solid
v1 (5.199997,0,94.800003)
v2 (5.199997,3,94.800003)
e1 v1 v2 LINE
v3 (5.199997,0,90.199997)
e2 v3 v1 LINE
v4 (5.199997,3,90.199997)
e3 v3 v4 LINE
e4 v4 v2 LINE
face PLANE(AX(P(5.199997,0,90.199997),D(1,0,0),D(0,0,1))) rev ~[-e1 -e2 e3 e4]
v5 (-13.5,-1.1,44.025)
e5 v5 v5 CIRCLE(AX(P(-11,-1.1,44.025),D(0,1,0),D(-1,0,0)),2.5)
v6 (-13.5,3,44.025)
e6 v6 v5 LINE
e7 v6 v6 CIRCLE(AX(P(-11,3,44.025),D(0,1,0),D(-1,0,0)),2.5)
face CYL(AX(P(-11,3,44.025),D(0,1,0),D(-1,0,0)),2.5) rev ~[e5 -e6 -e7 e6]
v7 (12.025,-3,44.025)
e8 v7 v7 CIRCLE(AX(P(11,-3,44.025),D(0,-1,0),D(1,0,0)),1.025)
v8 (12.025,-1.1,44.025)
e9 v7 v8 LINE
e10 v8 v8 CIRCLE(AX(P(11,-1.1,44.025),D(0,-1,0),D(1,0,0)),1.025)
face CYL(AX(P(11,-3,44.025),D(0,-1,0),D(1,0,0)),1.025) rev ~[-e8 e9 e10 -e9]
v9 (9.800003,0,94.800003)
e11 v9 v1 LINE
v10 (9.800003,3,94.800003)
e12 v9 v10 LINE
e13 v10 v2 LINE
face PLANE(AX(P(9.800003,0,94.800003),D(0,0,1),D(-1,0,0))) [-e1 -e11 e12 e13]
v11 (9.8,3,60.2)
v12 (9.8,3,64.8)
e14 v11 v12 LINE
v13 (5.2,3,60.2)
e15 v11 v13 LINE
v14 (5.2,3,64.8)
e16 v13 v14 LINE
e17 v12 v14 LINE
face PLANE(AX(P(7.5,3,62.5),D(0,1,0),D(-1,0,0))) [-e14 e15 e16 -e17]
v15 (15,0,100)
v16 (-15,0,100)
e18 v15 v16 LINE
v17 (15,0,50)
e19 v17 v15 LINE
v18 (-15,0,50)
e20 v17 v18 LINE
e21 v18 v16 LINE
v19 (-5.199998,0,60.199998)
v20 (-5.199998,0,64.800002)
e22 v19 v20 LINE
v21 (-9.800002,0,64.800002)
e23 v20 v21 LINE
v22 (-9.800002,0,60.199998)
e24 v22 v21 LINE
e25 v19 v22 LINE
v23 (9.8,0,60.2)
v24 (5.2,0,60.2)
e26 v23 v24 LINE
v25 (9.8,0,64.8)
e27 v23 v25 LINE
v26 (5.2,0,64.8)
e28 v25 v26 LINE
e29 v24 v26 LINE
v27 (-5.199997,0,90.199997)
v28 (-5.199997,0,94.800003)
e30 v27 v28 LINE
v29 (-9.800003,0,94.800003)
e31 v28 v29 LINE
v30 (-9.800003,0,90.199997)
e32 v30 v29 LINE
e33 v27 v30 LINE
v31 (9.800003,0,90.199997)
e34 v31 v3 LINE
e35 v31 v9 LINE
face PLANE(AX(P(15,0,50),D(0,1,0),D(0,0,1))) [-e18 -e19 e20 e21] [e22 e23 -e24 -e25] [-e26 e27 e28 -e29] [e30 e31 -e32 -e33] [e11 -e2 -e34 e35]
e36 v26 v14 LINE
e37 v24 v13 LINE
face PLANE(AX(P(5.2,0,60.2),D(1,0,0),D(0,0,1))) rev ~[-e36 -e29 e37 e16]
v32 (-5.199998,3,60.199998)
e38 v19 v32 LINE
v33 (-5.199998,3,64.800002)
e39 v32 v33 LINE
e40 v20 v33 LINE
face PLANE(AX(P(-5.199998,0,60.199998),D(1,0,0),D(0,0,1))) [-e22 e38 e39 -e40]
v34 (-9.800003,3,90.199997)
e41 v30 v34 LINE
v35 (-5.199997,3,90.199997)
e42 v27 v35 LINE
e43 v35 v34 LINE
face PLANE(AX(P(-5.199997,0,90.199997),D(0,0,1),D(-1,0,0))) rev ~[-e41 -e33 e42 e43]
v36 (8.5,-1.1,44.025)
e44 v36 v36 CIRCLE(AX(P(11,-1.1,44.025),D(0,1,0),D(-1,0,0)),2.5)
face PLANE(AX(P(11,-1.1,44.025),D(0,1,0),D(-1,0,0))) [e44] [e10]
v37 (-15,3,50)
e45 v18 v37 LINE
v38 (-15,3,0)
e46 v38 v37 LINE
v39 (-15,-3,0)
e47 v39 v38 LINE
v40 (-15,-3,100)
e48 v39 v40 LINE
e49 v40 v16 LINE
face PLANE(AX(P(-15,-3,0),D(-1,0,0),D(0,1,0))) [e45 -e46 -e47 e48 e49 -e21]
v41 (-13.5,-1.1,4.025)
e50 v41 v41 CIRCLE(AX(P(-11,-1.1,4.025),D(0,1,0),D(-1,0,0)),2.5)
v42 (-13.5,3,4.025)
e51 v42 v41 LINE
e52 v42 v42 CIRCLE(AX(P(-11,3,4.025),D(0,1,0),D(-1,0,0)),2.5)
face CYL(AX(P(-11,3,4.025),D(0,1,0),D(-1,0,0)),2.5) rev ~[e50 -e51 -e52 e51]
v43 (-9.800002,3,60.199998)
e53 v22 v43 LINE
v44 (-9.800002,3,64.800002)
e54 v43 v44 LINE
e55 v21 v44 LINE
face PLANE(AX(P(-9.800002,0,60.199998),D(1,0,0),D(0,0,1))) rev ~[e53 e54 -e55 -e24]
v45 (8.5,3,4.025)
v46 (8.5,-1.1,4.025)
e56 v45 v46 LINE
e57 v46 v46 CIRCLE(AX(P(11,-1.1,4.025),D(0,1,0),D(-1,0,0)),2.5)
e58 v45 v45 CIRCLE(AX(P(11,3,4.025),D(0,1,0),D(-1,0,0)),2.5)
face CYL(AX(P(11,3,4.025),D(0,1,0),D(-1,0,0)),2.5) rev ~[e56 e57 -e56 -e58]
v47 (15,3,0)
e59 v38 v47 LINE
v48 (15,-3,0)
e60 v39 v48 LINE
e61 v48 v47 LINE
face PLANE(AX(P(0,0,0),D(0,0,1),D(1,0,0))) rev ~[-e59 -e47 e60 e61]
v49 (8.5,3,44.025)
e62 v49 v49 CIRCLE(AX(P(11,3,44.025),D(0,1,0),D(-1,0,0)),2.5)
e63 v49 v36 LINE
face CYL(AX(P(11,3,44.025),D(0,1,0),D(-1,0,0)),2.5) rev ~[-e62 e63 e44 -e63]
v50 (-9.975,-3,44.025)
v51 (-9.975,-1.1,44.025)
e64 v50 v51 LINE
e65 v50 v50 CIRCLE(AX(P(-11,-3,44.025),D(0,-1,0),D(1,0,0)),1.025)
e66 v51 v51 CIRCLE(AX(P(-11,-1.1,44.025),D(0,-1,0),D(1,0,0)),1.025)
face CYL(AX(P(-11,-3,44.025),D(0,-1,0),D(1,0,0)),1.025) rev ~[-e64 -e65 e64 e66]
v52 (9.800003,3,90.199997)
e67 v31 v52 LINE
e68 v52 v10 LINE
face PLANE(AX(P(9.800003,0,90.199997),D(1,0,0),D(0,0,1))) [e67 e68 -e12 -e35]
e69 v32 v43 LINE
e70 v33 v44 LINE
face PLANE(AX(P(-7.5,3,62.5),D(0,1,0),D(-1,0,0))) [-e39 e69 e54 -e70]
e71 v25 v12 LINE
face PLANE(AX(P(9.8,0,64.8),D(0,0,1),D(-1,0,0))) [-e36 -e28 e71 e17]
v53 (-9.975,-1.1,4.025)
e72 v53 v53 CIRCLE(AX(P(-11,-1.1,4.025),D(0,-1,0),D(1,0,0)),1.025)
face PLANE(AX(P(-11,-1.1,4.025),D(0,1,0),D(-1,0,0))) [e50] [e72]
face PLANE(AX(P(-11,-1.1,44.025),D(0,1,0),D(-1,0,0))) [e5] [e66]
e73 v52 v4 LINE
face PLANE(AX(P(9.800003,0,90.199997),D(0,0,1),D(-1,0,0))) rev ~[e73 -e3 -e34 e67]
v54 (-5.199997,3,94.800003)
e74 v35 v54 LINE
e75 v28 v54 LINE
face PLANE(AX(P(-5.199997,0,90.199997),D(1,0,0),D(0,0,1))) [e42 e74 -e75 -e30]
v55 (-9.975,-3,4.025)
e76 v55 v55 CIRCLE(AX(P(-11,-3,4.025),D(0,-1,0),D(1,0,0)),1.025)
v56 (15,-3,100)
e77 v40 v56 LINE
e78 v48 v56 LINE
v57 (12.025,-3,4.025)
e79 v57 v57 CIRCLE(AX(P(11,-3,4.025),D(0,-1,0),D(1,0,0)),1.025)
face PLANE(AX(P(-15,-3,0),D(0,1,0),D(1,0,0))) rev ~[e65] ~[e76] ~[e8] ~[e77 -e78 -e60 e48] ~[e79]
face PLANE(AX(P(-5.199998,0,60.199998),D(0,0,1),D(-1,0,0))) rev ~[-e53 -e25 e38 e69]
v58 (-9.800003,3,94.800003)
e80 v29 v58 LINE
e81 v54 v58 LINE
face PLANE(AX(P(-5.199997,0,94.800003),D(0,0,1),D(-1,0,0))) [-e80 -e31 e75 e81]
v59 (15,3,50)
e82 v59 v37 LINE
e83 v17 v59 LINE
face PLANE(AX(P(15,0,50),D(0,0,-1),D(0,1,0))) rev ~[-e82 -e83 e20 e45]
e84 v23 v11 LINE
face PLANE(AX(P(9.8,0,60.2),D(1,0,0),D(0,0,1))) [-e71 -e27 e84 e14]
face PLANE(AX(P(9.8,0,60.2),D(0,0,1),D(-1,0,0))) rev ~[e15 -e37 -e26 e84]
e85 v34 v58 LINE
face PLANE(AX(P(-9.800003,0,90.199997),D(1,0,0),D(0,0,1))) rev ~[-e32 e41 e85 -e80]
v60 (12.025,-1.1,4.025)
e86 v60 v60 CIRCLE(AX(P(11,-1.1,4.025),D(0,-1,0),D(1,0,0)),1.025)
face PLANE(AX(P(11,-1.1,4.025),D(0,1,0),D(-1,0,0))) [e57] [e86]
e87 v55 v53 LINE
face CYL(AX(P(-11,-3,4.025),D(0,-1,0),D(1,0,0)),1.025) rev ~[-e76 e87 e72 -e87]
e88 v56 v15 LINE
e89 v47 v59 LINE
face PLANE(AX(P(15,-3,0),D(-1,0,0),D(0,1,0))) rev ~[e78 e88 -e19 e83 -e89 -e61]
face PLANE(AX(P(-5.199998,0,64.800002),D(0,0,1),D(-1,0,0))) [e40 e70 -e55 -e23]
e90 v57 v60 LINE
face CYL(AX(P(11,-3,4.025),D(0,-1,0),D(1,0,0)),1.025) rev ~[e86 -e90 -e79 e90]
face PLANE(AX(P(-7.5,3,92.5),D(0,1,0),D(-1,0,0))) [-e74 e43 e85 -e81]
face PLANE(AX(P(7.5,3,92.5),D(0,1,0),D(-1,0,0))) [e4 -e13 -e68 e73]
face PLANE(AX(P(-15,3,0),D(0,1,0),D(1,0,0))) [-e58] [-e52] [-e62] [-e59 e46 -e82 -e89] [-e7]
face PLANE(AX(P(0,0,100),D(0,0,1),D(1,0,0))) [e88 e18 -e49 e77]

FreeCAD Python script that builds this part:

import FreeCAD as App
import Part
import Sketcher
from FreeCAD import Vector


def add_polygon(sketch, points):
    """Adds a closed chain of lines whose ends are joined by coincident constraints."""
    first, n = sketch.GeometryCount, len(points)
    for a, b in zip(points, points[1:] + points[:1]):
        sketch.addGeometry(Part.LineSegment(App.Vector(*a, 0), App.Vector(*b, 0)), False)
    for i in range(n):
        sketch.addConstraint(Sketcher.Constraint("Coincident", first + i, 2, first + (i + 1) % n, 1))

doc = App.newDocument("Part")
body = doc.addObject("PartDesign::Body", "Body")

# Sketch on XY plane
sketch1 = body.newObject("Sketcher::SketchObject", "Sketch")
sketch1.AttachmentSupport = (doc.getObject("XY_Plane"), [""])
sketch1.MapMode = "FlatFace"
add_polygon(sketch1, [(-15, 3), (-15, -3), (15, -3), (15, 3)])  # lines 0-3
sketch1.addConstraint([
    Sketcher.Constraint("Vertical", 0),
    Sketcher.Constraint("Horizontal", 1),
    Sketcher.Constraint("Vertical", 2),
    Sketcher.Constraint("Horizontal", 3),
    Sketcher.Constraint("Symmetric", 0, 2, 2, 2, -1, 1),
    Sketcher.Constraint("DistanceX", 1, 1, 1, 2, 30.0),
    Sketcher.Constraint("DistanceY", 0, 2, 0, 1, 6.0),
])
pad1 = body.newObject("PartDesign::Pad", "Pad")
pad1.Profile = sketch1
pad1.Length = 100

# Sketch on XZ plane
sketch2 = body.newObject("Sketcher::SketchObject", "Sketch001")
sketch2.AttachmentSupport = (doc.getObject("XZ_Plane"), [""])
sketch2.MapMode = "FlatFace"
sketch2.AttachmentOffset = App.Placement(Vector(0, 0, 3), App.Rotation())
sketch2.addGeometry([
    Part.Circle(Vector(11, 4, 0), Vector(0, 0, 1), 1),
    Part.Circle(Vector(11, 44, 0), Vector(0, 0, 1), 1),
    Part.Circle(Vector(-11, 44, 0), Vector(0, 0, 1), 1),
    Part.Circle(Vector(-11, 4, 0), Vector(0, 0, 1), 1),
], False)
sketch2.addConstraint([
    Sketcher.Constraint("Equal", 0, 1),
    Sketcher.Constraint("Equal", 1, 2),
    Sketcher.Constraint("Equal", 2, 3),
    Sketcher.Constraint("Symmetric", 1, 3, 2, 3, -2),
    Sketcher.Constraint("Symmetric", 0, 3, 3, 3, -2),
    Sketcher.Constraint("Vertical", 0, 3, 1, 3),
    Sketcher.Constraint("Diameter", 0, 2.05),
    Sketcher.Constraint("DistanceX", -1, 1, 0, 3, 11.0),
    Sketcher.Constraint("DistanceY", 0, 3, 1, 3, 40.0),
    Sketcher.Constraint("DistanceY", -1, 1, 0, 3, 4.025),
])
pocket1 = body.newObject("PartDesign::Pocket", "Pocket")
pocket1.Profile = sketch2
pocket1.Type = "ThroughAll"

# Sketch on YZ plane
sketch3 = body.newObject("Sketcher::SketchObject", "Sketch002")
sketch3.AttachmentSupport = (doc.getObject("YZ_Plane"), [""])
sketch3.MapMode = "FlatFace"
sketch3.AttachmentOffset = App.Placement(Vector(0, 0, 15), App.Rotation())
add_polygon(sketch3, [(0, 100), (0, 50), (3, 50), (3, 100)])  # lines 0-3
sketch3.addConstraint([
    Sketcher.Constraint("Vertical", 0),
    Sketcher.Constraint("Horizontal", 1),
    Sketcher.Constraint("Vertical", 2),
    Sketcher.Constraint("Horizontal", 3),
    Sketcher.Constraint("PointOnObject", 0, 2, -2),
    Sketcher.Constraint("DistanceX", 1, 1, 1, 2, 3.0),
    Sketcher.Constraint("DistanceY", 0, 2, 0, 1, 50.0),
    Sketcher.Constraint("DistanceY", -1, 1, 0, 2, 50.0),
])
pocket2 = body.newObject("PartDesign::Pocket", "Pocket001")
pocket2.Profile = sketch3
pocket2.Type = "ThroughAll"

# Sketch on XZ plane
sketch4 = body.newObject("Sketcher::SketchObject", "Sketch003")
sketch4.AttachmentSupport = (doc.getObject("XZ_Plane"), [""])
sketch4.MapMode = "FlatFace"
add_polygon(sketch4, [(9.8, 94.8), (9.8, 90.2), (5.2, 90.2), (5.2, 94.8)])  # lines 0-3
add_polygon(sketch4, [(-5.2, 94.8), (-5.2, 90.2), (-9.8, 90.2), (-9.8, 94.8)])  # lines 4-7
add_polygon(sketch4, [(9.8, 64.8), (9.8, 60.2), (5.2, 60.2), (5.2, 64.8)])  # lines 8-11
add_polygon(sketch4, [(-5.2, 64.8), (-5.2, 60.2), (-9.8, 60.2), (-9.8, 64.8)])  # lines 12-15
sketch4.addConstraint([
    Sketcher.Constraint("Vertical", 0),
    Sketcher.Constraint("Horizontal", 1),
    Sketcher.Constraint("Vertical", 2),
    Sketcher.Constraint("Horizontal", 3),
    Sketcher.Constraint("Vertical", 4),
    Sketcher.Constraint("Horizontal", 5),
    Sketcher.Constraint("Vertical", 6),
    Sketcher.Constraint("Horizontal", 7),
    Sketcher.Constraint("Vertical", 8),
    Sketcher.Constraint("Horizontal", 9),
    Sketcher.Constraint("Vertical", 10),
    Sketcher.Constraint("Horizontal", 11),
    Sketcher.Constraint("Vertical", 12),
    Sketcher.Constraint("Horizontal", 13),
    Sketcher.Constraint("Vertical", 14),
    Sketcher.Constraint("Horizontal", 15),
    Sketcher.Constraint("Symmetric", 1, 2, 4, 2, -2),
    Sketcher.Constraint("Symmetric", 3, 2, 6, 2, -2),
    Sketcher.Constraint("Symmetric", 9, 2, 12, 2, -2),
    Sketcher.Constraint("Symmetric", 11, 2, 14, 2, -2),
    Sketcher.Constraint("Vertical", 7, 2, 12, 2),
    Sketcher.Constraint("Vertical", 6, 2, 13, 2),
    Sketcher.Constraint("Equal", 7, 0),
    Sketcher.Constraint("Equal", 11, 8),
    Sketcher.Constraint("DistanceX", 9, 2, 9, 1, 4.6),
    Sketcher.Constraint("DistanceX", 4, 2, 0, 2, 15.0),
    Sketcher.Constraint("DistanceY", 12, 2, 4, 2, 29.999999),
    Sketcher.Constraint("DistanceY", -1, 1, 8, 2, 60.2),
])
pad2 = body.newObject("PartDesign::Pad", "Pad001")
pad2.Profile = sketch4
pad2.Length = 3
pad2.Reversed = True

# Sketch on XZ plane
sketch5 = body.newObject("Sketcher::SketchObject", "Sketch004")
sketch5.AttachmentSupport = (doc.getObject("XZ_Plane"), [""])
sketch5.MapMode = "FlatFace"
sketch5.AttachmentOffset = App.Placement(Vector(0, 0, -3), App.Rotation())
sketch5.addGeometry([
    Part.Circle(Vector(-11, 44, 0), Vector(0, 0, 1), 2.5),
    Part.Circle(Vector(11, 44, 0), Vector(0, 0, 1), 2.5),
    Part.Circle(Vector(11, 4, 0), Vector(0, 0, 1), 2.5),
    Part.Circle(Vector(-11, 4, 0), Vector(0, 0, 1), 2.5),
], False)
sketch5.addConstraint([
    Sketcher.Constraint("Equal", 0, 1),
    Sketcher.Constraint("Equal", 1, 2),
    Sketcher.Constraint("Equal", 2, 3),
    Sketcher.Constraint("Symmetric", 0, 3, 1, 3, -2),
    Sketcher.Constraint("Symmetric", 2, 3, 3, 3, -2),
    Sketcher.Constraint("Vertical", 1, 3, 2, 3),
    Sketcher.Constraint("Diameter", 0, 5.0),
    Sketcher.Constraint("DistanceX", 0, 3, -1, 1, 11.0),
    Sketcher.Constraint("DistanceY", 2, 3, 1, 3, 40.0),
    Sketcher.Constraint("DistanceY", -1, 1, 0, 3, 44.025),
])
pocket3 = body.newObject("PartDesign::Pocket", "Pocket002")
pocket3.Profile = sketch5
pocket3.Length = 4.1
pocket3.Reversed = True

doc.recompute()
